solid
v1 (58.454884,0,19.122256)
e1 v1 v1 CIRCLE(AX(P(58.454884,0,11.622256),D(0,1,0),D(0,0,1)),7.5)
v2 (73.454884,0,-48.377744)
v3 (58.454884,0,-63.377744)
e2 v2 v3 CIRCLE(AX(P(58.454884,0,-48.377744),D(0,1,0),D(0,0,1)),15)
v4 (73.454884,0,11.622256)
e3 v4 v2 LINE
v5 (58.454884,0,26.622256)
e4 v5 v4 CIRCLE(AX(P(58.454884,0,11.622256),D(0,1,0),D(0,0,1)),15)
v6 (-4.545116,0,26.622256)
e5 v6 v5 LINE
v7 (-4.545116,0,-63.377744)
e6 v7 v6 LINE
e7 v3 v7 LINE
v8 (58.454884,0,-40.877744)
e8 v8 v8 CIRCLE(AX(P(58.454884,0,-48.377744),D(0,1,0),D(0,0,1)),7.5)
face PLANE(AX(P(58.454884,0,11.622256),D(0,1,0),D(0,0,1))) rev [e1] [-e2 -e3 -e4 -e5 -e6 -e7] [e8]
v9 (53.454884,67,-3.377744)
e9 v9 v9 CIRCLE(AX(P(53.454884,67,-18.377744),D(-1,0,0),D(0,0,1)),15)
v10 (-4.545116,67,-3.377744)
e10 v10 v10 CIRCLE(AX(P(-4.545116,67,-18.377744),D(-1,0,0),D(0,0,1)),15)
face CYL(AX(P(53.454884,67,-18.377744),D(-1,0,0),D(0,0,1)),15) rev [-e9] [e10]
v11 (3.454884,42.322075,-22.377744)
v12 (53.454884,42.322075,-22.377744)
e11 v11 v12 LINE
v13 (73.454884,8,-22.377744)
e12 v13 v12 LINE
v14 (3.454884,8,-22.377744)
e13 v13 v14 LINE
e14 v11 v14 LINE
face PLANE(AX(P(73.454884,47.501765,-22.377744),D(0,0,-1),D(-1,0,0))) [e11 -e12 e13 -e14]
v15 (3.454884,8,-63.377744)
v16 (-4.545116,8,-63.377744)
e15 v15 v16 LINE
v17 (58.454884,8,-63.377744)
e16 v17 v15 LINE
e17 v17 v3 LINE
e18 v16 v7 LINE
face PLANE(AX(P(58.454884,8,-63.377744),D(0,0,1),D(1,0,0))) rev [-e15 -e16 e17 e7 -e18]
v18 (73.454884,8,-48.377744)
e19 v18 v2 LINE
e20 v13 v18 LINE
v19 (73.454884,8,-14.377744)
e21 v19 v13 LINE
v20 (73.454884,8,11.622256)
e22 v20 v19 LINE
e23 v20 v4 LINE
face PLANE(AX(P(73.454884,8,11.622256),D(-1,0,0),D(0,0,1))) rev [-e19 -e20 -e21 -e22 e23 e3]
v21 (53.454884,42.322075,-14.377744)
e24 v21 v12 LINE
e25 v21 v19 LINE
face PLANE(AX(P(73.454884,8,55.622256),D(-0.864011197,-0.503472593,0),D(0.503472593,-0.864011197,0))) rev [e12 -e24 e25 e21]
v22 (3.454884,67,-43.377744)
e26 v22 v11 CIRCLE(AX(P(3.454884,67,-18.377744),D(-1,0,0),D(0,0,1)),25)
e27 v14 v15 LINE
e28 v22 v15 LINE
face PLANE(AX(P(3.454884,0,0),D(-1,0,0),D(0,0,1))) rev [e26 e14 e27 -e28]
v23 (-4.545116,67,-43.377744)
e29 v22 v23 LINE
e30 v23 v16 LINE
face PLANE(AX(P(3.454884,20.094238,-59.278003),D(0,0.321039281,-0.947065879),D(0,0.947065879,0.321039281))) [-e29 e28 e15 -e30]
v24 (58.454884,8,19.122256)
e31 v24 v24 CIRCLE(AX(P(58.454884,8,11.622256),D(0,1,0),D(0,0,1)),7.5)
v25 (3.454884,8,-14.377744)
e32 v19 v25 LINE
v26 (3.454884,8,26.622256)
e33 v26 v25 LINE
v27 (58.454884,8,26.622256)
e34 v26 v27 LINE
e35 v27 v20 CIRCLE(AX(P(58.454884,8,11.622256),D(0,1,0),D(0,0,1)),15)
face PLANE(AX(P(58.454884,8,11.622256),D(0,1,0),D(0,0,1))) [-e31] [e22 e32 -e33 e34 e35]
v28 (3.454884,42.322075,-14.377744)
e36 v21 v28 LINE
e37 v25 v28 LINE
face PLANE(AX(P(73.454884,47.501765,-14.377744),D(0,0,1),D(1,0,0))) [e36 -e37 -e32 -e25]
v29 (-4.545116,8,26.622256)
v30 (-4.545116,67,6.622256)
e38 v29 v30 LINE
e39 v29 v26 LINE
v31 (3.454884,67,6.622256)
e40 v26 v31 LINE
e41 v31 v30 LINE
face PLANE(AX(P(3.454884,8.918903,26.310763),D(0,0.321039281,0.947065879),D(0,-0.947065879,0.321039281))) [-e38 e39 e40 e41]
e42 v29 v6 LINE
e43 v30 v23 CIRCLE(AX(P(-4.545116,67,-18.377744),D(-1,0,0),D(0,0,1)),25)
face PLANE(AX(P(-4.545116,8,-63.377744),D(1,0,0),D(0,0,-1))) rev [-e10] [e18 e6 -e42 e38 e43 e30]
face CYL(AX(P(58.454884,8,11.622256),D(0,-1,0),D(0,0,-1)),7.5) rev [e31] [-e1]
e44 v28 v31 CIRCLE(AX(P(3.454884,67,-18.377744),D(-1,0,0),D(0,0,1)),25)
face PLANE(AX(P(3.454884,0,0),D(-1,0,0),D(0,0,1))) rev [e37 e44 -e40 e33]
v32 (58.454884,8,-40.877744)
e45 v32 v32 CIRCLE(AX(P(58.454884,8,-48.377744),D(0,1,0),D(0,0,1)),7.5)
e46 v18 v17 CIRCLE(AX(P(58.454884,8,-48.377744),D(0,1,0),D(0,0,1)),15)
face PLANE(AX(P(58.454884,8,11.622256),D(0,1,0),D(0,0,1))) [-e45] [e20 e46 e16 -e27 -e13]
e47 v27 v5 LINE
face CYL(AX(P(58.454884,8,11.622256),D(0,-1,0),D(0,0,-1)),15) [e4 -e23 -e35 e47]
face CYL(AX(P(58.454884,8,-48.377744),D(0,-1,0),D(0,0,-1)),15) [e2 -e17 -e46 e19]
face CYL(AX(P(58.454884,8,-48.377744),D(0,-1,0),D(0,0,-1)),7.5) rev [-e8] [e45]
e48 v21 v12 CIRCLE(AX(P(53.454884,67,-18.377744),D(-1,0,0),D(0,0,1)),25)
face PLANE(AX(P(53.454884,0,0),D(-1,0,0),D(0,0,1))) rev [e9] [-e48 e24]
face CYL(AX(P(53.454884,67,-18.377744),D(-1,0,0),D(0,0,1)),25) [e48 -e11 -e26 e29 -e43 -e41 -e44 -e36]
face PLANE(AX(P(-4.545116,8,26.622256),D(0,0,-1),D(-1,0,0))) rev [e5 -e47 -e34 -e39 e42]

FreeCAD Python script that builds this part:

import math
import FreeCAD as App
import Part
import Sketcher

V = App.Vector
Q = App.Units.Quantity

doc = App.newDocument("Part")
body = doc.addObject("PartDesign::Body", "Body")

# Sketch on XZ plane
sketch1 = body.newObject("Sketcher::SketchObject", "Sketch")
sketch1.AttachmentSupport = (doc.getObject("XZ_Plane"), [""])
sketch1.MapMode = "FlatFace"
sketch1.addGeometry([
    Part.LineSegment(V(-5, 27, 0), V(58, 27, 0)),  # 0
    Part.ArcOfCircle(Part.Circle(V(58, 12, 0), V(0, 0, 1), 15), math.radians(0), math.radians(90)),  # 1
    Part.LineSegment(V(73, 12, 0), V(73, -48, 0)),  # 2
    Part.ArcOfCircle(Part.Circle(V(58, -48, 0), V(0, 0, 1), 15), math.radians(-90), math.radians(0)),  # 3
    Part.LineSegment(V(58, -63, 0), V(-5, -63, 0)),  # 4
    Part.LineSegment(V(-5, -63, 0), V(-5, 27, 0)),  # 5
    Part.Circle(V(58, 12, 0), V(0, 0, 1), 8),  # 6
    Part.Circle(V(58, -48, 0), V(0, 0, 1), 8),  # 7
], False)
sketch1.addConstraint([
    Sketcher.Constraint("Tangent", 0, 2, 1, 2),
    Sketcher.Constraint("Tangent", 1, 1, 2, 1),
    Sketcher.Constraint("Tangent", 2, 2, 3, 2),
    Sketcher.Constraint("Tangent", 3, 1, 4, 1),
    Sketcher.Constraint("Coincident", 4, 2, 5, 1),
    Sketcher.Constraint("Coincident", 5, 2, 0, 1),
    Sketcher.Constraint("Horizontal", 0),
    Sketcher.Constraint("Vertical", 2),
    Sketcher.Constraint("Horizontal", 4),
    Sketcher.Constraint("Vertical", 5),
    Sketcher.Constraint("Coincident", 6, 3, 1, 3),
    Sketcher.Constraint("Coincident", 7, 3, 3, 3),
    Sketcher.Constraint("Equal", 1, 3),
    Sketcher.Constraint("Equal", 6, 7),
    Sketcher.Constraint("Diameter", 6, 15.0),
    Sketcher.Constraint("Radius", 1, 15.0),
    Sketcher.Constraint("DistanceX", 0, 1, 0, 2, 63.0),
    Sketcher.Constraint("DistanceY", 2, 2, 2, 1, 60.0),
    Sketcher.Constraint("DistanceX", -1, 1, 1, 3, 58.454884),
    Sketcher.Constraint("DistanceY", -1, 1, 1, 3, 11.622256),
])
pad1 = body.newObject("PartDesign::Pad", "Pad")
pad1.Profile = sketch1
pad1.Length = 8
pad1.Reversed = True

# Sketch on YZ plane
sketch2 = body.newObject("Sketcher::SketchObject", "Sketch001")
sketch2.AttachmentSupport = (doc.getObject("YZ_Plane"), [""])
sketch2.MapMode = "FlatFace"
sketch2.AttachmentOffset = App.Placement(V(0, 0, -4.545116), App.Rotation())
sketch2.addGeometry([
    Part.LineSegment(V(8, 27, 0), V(67, 7, 0)),  # 0
    Part.ArcOfCircle(Part.Circle(V(67, -18, 0), V(0, 0, 1), 25), math.radians(90), math.radians(180)),  # 1
    Part.ArcOfCircle(Part.Circle(V(67, -18, 0), V(0, 0, 1), 25), math.radians(180), math.radians(270)),  # 2
    Part.LineSegment(V(67, -43, 0), V(8, -63, 0)),  # 3
    Part.LineSegment(V(8, -63, 0), V(8, 27, 0)),  # 4
], False)
sketch2.addConstraint([
    Sketcher.Constraint("Coincident", 0, 2, 1, 1),
    Sketcher.Constraint("Tangent", 1, 2, 2, 1),
    Sketcher.Constraint("Coincident", 2, 2, 3, 1),
    Sketcher.Constraint("Coincident", 3, 2, 4, 1),
    Sketcher.Constraint("Coincident", 4, 2, 0, 1),
    Sketcher.Constraint("Vertical", 4),
    Sketcher.Constraint("Equal", 1, 2),
    Sketcher.Constraint("Horizontal", 2, 3, 1, 2),
    Sketcher.Constraint("Vertical", 2, 3, 0, 2),
    Sketcher.Constraint("Vertical", 0, 2, 2, 2),
    Sketcher.Constraint("Equal", 0, 3),
    Sketcher.Constraint("Radius", 1, 25.0),
    Sketcher.Constraint("DistanceY", 4, 1, 4, 2, 90.0),
    Sketcher.Constraint("DistanceX", -1, 1, 1, 3, 67.0),
    Sketcher.Constraint("DistanceX", -1, 1, 3, 2, 8.0),
    Sketcher.Constraint("DistanceY", 1, 3, -1, 1, 18.377744),
])
pad2 = body.newObject("PartDesign::Pad", "Pad001")
pad2.Profile = sketch2
pad2.Length = 8

# Sketch on YZ plane
sketch3 = body.newObject("Sketcher::SketchObject", "Sketch002")
sketch3.AttachmentSupport = (doc.getObject("YZ_Plane"), [""])
sketch3.MapMode = "FlatFace"
sketch3.AttachmentOffset = App.Placement(V(0, 0, -4.545116), App.Rotation())
sketch3.addGeometry([
    Part.Circle(V(67, -18, 0), V(0, 0, 1), 25),
    Part.Circle(V(67, -18, 0), V(0, 0, 1), 15),
], False)
sketch3.addConstraint([
    Sketcher.Constraint("Coincident", 1, 3, 0, 3),
    Sketcher.Constraint("Diameter", 0, 50.0),
    Sketcher.Constraint("Diameter", 1, 30.0),
    Sketcher.Constraint("DistanceX", -1, 1, 0, 3, 67.0),
    Sketcher.Constraint("DistanceY", 0, 3, -1, 1, 18.377744),
])
pad3 = body.newObject("PartDesign::Pad", "Pad002")
pad3.Profile = sketch3
pad3.Length = 58

# Sketch on YZ plane
sketch4 = body.newObject("Sketcher::SketchObject", "Sketch003")
sketch4.AttachmentSupport = (doc.getObject("YZ_Plane"), [""])
sketch4.MapMode = "FlatFace"
sketch4.AttachmentOffset = App.Placement(V(0, 0, -4.545116), App.Rotation())
sketch4.addGeometry([
    Part.LineSegment(V(48, -22, 0), V(8, -22, 0)),
    Part.LineSegment(V(8, -22, 0), V(8, -14, 0)),
    Part.LineSegment(V(8, -14, 0), V(48, -14, 0)),
    Part.LineSegment(V(48, -14, 0), V(48, -22, 0)),
], False)
sketch4.addConstraint([
    Sketcher.Constraint("Coincident", 0, 2, 1, 1),
    Sketcher.Constraint("Coincident", 1, 2, 2, 1),
    Sketcher.Constraint("Coincident", 2, 2, 3, 1),
    Sketcher.Constraint("Coincident", 3, 2, 0, 1),
    Sketcher.Constraint("Horizontal", 0),
    Sketcher.Constraint("Vertical", 1),
    Sketcher.Constraint("Horizontal", 2),
    Sketcher.Constraint("Vertical", 3),
    Sketcher.Constraint("DistanceY", 1, 1, 1, 2, 8.0),
    Sketcher.Constraint("DistanceX", -1, 1, 0, 2, 8.0),
    Sketcher.Constraint("DistanceX", 0, 2, 0, 1, 39.501765),
    Sketcher.Constraint("DistanceY", 0, 2, -1, 1, 22.377744),
])
pad4 = body.newObject("PartDesign::Pad", "Pad003")
pad4.Profile = sketch4
pad4.Length = 78

# Sketch on XY plane
sketch5 = body.newObject("Sketcher::SketchObject", "Sketch004")
sketch5.AttachmentSupport = (doc.getObject("XY_Plane"), [""])
sketch5.MapMode = "FlatFace"
sketch5.AttachmentOffset = App.Placement(V(0, 0, -22.377744), App.Rotation())
sketch5.addGeometry([
    Part.LineSegment(V(73, 8, 0), V(53, 42, 0)),
    Part.LineSegment(V(53, 42, 0), V(53, 48, 0)),
    Part.LineSegment(V(53, 48, 0), V(73, 48, 0)),
    Part.LineSegment(V(73, 48, 0), V(73, 8, 0)),
], False)
sketch5.addConstraint([
    Sketcher.Constraint("Coincident", 0, 2, 1, 1),
    Sketcher.Constraint("Coincident", 1, 2, 2, 1),
    Sketcher.Constraint("Coincident", 2, 2, 3, 1),
    Sketcher.Constraint("Coincident", 3, 2, 0, 1),
    Sketcher.Constraint("Vertical", 1),
    Sketcher.Constraint("Horizontal", 2),
    Sketcher.Constraint("Vertical", 3),
    Sketcher.Constraint("DistanceX", 2, 1, 2, 2, 20.0),
    Sketcher.Constraint("DistanceY", -1, 1, 3, 2, 8.0),
    Sketcher.Constraint("Angle", 0, Q("120.230012 deg")),
    Sketcher.Constraint("DistanceY", 1, 1, 1, 2, 5.179691),
    Sketcher.Constraint("DistanceX", -1, 1, 0, 2, 53.454884),
])
pocket1 = body.newObject("PartDesign::Pocket", "Pocket")
pocket1.Profile = sketch5
pocket1.Length = 78
pocket1.Reversed = True

doc.recompute()
